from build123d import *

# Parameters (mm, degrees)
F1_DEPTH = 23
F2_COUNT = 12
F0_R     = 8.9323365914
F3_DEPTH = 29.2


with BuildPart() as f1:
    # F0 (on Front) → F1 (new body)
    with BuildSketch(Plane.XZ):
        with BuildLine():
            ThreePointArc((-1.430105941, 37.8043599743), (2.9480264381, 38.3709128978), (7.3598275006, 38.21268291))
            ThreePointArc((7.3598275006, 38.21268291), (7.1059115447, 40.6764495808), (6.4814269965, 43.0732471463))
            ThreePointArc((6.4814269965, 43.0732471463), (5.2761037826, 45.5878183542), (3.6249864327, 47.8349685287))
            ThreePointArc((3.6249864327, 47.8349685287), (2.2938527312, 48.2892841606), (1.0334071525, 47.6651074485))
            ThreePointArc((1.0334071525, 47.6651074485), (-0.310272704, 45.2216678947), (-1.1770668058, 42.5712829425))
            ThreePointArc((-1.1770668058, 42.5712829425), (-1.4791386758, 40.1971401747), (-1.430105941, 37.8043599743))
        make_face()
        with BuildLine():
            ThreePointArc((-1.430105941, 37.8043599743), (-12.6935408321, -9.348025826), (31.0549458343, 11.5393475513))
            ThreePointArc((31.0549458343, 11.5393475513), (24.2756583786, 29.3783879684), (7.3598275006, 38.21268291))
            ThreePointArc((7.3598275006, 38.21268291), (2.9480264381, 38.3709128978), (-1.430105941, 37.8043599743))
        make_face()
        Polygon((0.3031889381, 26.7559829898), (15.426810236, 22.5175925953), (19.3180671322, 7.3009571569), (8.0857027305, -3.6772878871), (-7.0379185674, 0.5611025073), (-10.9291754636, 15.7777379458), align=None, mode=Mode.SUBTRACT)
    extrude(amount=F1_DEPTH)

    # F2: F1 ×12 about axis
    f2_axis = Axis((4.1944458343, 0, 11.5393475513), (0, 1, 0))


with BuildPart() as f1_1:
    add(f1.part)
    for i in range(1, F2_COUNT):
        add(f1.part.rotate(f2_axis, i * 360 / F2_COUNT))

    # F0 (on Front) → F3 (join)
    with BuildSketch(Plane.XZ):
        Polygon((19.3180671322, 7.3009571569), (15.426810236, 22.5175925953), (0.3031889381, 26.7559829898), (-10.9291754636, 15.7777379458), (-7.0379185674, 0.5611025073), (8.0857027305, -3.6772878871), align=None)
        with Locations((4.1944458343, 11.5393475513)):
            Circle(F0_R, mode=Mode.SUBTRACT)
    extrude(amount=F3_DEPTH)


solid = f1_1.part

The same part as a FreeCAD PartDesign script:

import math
import FreeCAD as App
import Part
import Sketcher
from FreeCAD import Vector
Q = App.Units.Quantity

doc = App.newDocument("Part")
body = doc.addObject("PartDesign::Body", "Body")

sketch1 = body.newObject("Sketcher::SketchObject", "Sketch")
sketch1.AttachmentSupport = (doc.getObject("XZ_Plane"), [""])
sketch1.MapMode = "FlatFace"
sketch1.addGeometry([
    Part.ArcOfCircle(Part.Circle(Vector(-8.925133, 37.779321, 0), Vector(0, 0, 1), 16.290725), math.radians(1.524347), math.radians(18.963492)),
    Part.ArcOfCircle(Part.Circle(Vector(-7.55085, 37.893242, 0), Vector(0, 0, 1), 14.957849), math.radians(20.261591), math.radians(41.655441)),
    Part.ArcOfCircle(Part.Circle(Vector(2.413567, 46.462793, 0), Vector(0, 0, 1), 1.830411), math.radians(48.560477), math.radians(138.939523)),
    Part.ArcOfCircle(Part.Circle(Vector(13.411288, 39.267173, 0), Vector(0, 0, 1), 14.957849), math.radians(145.844559), math.radians(167.238409)),
    Part.ArcOfCircle(Part.Circle(Vector(14.788683, 39.333607, 0), Vector(0, 0, 1), 16.290725), math.radians(168.536508), math.radians(185.386415)),
    Part.ArcOfCircle(Part.Circle(Vector(4.194446, 11.539348, 0), Vector(0, 0, 1), 26.8605), math.radians(102.087112), math.radians(360)),
    Part.ArcOfCircle(Part.Circle(Vector(4.194446, 11.539348, 0), Vector(0, 0, 1), 26.8605), math.radians(0), math.radians(83.232239)),
    Part.LineSegment(Vector(-10.929175, 15.777738, 0), Vector(0.303189, 26.755983, 0)),
    Part.LineSegment(Vector(0.303189, 26.755983, 0), Vector(15.42681, 22.517593, 0)),
    Part.LineSegment(Vector(15.42681, 22.517593, 0), Vector(19.318067, 7.300957, 0)),
    Part.LineSegment(Vector(19.318067, 7.300957, 0), Vector(8.085703, -3.677288, 0)),
    Part.LineSegment(Vector(8.085703, -3.677288, 0), Vector(-7.037919, 0.561103, 0)),
    Part.LineSegment(Vector(-7.037919, 0.561103, 0), Vector(-10.929175, 15.777738, 0)),
], False)
sketch1.addConstraint([
    Sketcher.Constraint("Coincident", 0, 2, 1, 1),
    Sketcher.Constraint("Coincident", 1, 2, 2, 1),
    Sketcher.Constraint("Coincident", 2, 2, 3, 1),
    Sketcher.Constraint("Coincident", 3, 2, 4, 1),
    Sketcher.Constraint("Coincident", 4, 2, 5, 1),
    Sketcher.Constraint("Tangent", 5, 2, 6, 1),
    Sketcher.Constraint("Coincident", 6, 2, 0, 1),
    Sketcher.Constraint("Coincident", 7, 2, 8, 1),
    Sketcher.Constraint("Coincident", 8, 2, 9, 1),
    Sketcher.Constraint("Coincident", 9, 2, 10, 1),
    Sketcher.Constraint("Coincident", 10, 2, 11, 1),
    Sketcher.Constraint("Coincident", 11, 2, 12, 1),
    Sketcher.Constraint("Coincident", 12, 2, 7, 1),
    Sketcher.Constraint("Equal", 1, 3),
    Sketcher.Constraint("Equal", 0, 4),
    Sketcher.Constraint("Equal", 5, 6),
    Sketcher.Constraint("Parallel", 7, 10),
    Sketcher.Constraint("Parallel", 8, 11),
    Sketcher.Constraint("Parallel", 9, 12),
    Sketcher.Constraint("Horizontal", 6, 3, 5, 2),
    Sketcher.Constraint("Equal", 7, 8),
    Sketcher.Constraint("Equal", 8, 9),
    Sketcher.Constraint("Equal", 9, 10),
    Sketcher.Constraint("Radius", 5, Q("26.8605 mm")),
    Sketcher.Constraint("Radius", 1, Q("14.957849 mm")),
    Sketcher.Constraint("Radius", 2, Q("1.830411 mm")),
    Sketcher.Constraint("Radius", 0, Q("16.290725 mm")),
    Sketcher.Constraint("Distance", 7, Q("15.7063 mm")),
    Sketcher.Constraint("DistanceX", 0, 3, 2, 3, Q("11.3387 mm")),
    Sketcher.Constraint("DistanceX", 1, 2, 3, 3, Q("9.786302 mm")),
    Sketcher.Constraint("DistanceY", 5, 2, 0, 2, Q("31.5339 mm")),
    Sketcher.Constraint("DistanceX", 0, 2, 6, 2, Q("0.878401 mm")),
    Sketcher.Constraint("DistanceY", 6, 2, 3, 2, Q("4.3586 mm")),
    Sketcher.Constraint("DistanceY", 7, 2, 6, 2, Q("11.4567 mm")),
    Sketcher.Constraint("DistanceY", -1, 1, 0, 3, Q("37.779321 mm")),
    Sketcher.Constraint("DistanceX", 1, 3, -1, 1, Q("7.55085 mm")),
    Sketcher.Constraint("DistanceY", -1, 1, 1, 3, Q("37.893242 mm")),
    Sketcher.Constraint("DistanceX", -1, 1, 3, 3, Q("13.411288 mm")),
    Sketcher.Constraint("DistanceY", -1, 1, 4, 2, Q("37.80436 mm")),
    Sketcher.Constraint("DistanceX", -1, 1, 7, 2, Q("0.303189 mm")),
    Sketcher.Constraint("DistanceX", -1, 1, 8, 2, Q("15.42681 mm")),
    Sketcher.Constraint("DistanceX", 11, 2, -1, 1, Q("7.037919 mm")),
    Sketcher.Constraint("DistanceY", 3, 3, 2, 3, Q("7.19562 mm")),
    Sketcher.Constraint("DistanceX", 0, 3, 5, 3, Q("13.119578 mm")),
    Sketcher.Constraint("DistanceX", 9, 2, 5, 2, Q("11.736879 mm")),
])
pad1 = body.newObject("PartDesign::Pad", "Pad")
pad1.Profile = sketch1
pad1.Length = 23
body2 = doc.addObject("PartDesign::Body", "Body001")
doc.recompute()

body2.BaseFeature = body
doc.recompute()

body3 = doc.addObject("PartDesign::Body", "Body002")
body3.BaseFeature = body
body3.Placement = App.Placement(Vector(-5.207725, 0, 3.643202), App.Rotation(Vector(0, 1, 0), 30))
boolean = body2.newObject("PartDesign::Boolean", "Boolean")
boolean.Type = "Fuse"
boolean.addObjects([body3])
doc.recompute()

body4 = doc.addObject("PartDesign::Body", "Body003")
body4.BaseFeature = body
body4.Placement = App.Placement(Vector(-7.896145, 0, 9.40217), App.Rotation(Vector(0, 1, 0), 60))
boolean2 = body2.newObject("PartDesign::Boolean", "Boolean001")
boolean2.Type = "Fuse"
boolean2.addObjects([body4])
doc.recompute()

body5 = doc.addObject("PartDesign::Body", "Body004")
body5.BaseFeature = body
body5.Placement = App.Placement(Vector(-7.344902, 0, 15.733793), App.Rotation(Vector(0, 1, 0), 90))
boolean3 = body2.newObject("PartDesign::Boolean", "Boolean002")
boolean3.Type = "Fuse"
boolean3.addObjects([body5])
doc.recompute()

body6 = doc.addObject("PartDesign::Body", "Body005")
body6.BaseFeature = body
body6.Placement = App.Placement(Vector(-3.701699, 0, 20.941518), App.Rotation(Vector(0, 1, 0), 120))
boolean4 = body2.newObject("PartDesign::Boolean", "Boolean003")
boolean4.Type = "Fuse"
boolean4.addObjects([body6])
doc.recompute()

body7 = doc.addObject("PartDesign::Body", "Body006")
body7.BaseFeature = body
body7.Placement = App.Placement(Vector(2.057269, 0, 23.629939), App.Rotation(Vector(0, 1, 0), 150))
boolean5 = body2.newObject("PartDesign::Boolean", "Boolean004")
boolean5.Type = "Fuse"
boolean5.addObjects([body7])
doc.recompute()

body8 = doc.addObject("PartDesign::Body", "Body007")
body8.BaseFeature = body
body8.Placement = App.Placement(Vector(8.388892, 0, 23.078695), App.Rotation(Vector(0, 1, 0), 180))
boolean6 = body2.newObject("PartDesign::Boolean", "Boolean005")
boolean6.Type = "Fuse"
boolean6.addObjects([body8])
doc.recompute()

body9 = doc.addObject("PartDesign::Body", "Body008")
body9.BaseFeature = body
body9.Placement = App.Placement(Vector(13.596616, 0, 19.435493), App.Rotation(Vector(0, 1, 0), 210))
boolean7 = body2.newObject("PartDesign::Boolean", "Boolean006")
boolean7.Type = "Fuse"
boolean7.addObjects([body9])
doc.recompute()

body10 = doc.addObject("PartDesign::Body", "Body009")
body10.BaseFeature = body
body10.Placement = App.Placement(Vector(16.285037, 0, 13.676525), App.Rotation(Vector(0, 1, 0), 240))
boolean8 = body2.newObject("PartDesign::Boolean", "Boolean007")
boolean8.Type = "Fuse"
boolean8.addObjects([body10])
doc.recompute()

body11 = doc.addObject("PartDesign::Body", "Body010")
body11.BaseFeature = body
body11.Placement = App.Placement(Vector(15.733793, 0, 7.344902), App.Rotation(Vector(0, 1, 0), 270))
boolean9 = body2.newObject("PartDesign::Boolean", "Boolean008")
boolean9.Type = "Fuse"
boolean9.addObjects([body11])
doc.recompute()

body12 = doc.addObject("PartDesign::Body", "Body011")
body12.BaseFeature = body
body12.Placement = App.Placement(Vector(12.090591, 0, 2.137177), App.Rotation(Vector(0, 1, 0), 300))
boolean10 = body2.newObject("PartDesign::Boolean", "Boolean009")
boolean10.Type = "Fuse"
boolean10.addObjects([body12])
doc.recompute()

body.Placement = App.Placement(Vector(6.331623, 0, -0.551243), App.Rotation(Vector(0, 1, 0), 330))
boolean11 = body2.newObject("PartDesign::Boolean", "Boolean010")
boolean11.Type = "Fuse"
boolean11.addObjects([body])

sketch2 = body2.newObject("Sketcher::SketchObject", "Sketch001")
sketch2.AttachmentSupport = (doc.getObject("XZ_Plane001"), [""])
sketch2.MapMode = "FlatFace"
sketch2.addGeometry([
    Part.LineSegment(Vector(19.318067, 7.300957, 0), Vector(15.42681, 22.517593, 0)),
    Part.LineSegment(Vector(15.42681, 22.517593, 0), Vector(0.303189, 26.755983, 0)),
    Part.LineSegment(Vector(0.303189, 26.755983, 0), Vector(-10.929175, 15.777738, 0)),
    Part.LineSegment(Vector(-10.929175, 15.777738, 0), Vector(-7.037919, 0.561103, 0)),
    Part.LineSegment(Vector(-7.037919, 0.561103, 0), Vector(8.085703, -3.677288, 0)),
    Part.LineSegment(Vector(8.085703, -3.677288, 0), Vector(19.318067, 7.300957, 0)),
    Part.Circle(Vector(4.194446, 11.539348, 0), Vector(0, 0, 1), 8.932337),
], False)
sketch2.addConstraint([
    Sketcher.Constraint("Coincident", 0, 2, 1, 1),
    Sketcher.Constraint("Coincident", 1, 2, 2, 1),
    Sketcher.Constraint("Coincident", 2, 2, 3, 1),
    Sketcher.Constraint("Coincident", 3, 2, 4, 1),
    Sketcher.Constraint("Coincident", 4, 2, 5, 1),
    Sketcher.Constraint("Coincident", 5, 2, 0, 1),
    Sketcher.Constraint("Parallel", 0, 3),
    Sketcher.Constraint("Parallel", 1, 4),
    Sketcher.Constraint("Parallel", 2, 5),
    Sketcher.Constraint("Equal", 0, 1),
    Sketcher.Constraint("Equal", 1, 2),
    Sketcher.Constraint("Equal", 2, 3),
    Sketcher.Constraint("Diameter", 6, Q("17.864673 mm")),
    Sketcher.Constraint("Distance", 0, Q("15.7063 mm")),
    Sketcher.Constraint("DistanceX", -1, 1, 0, 2, Q("15.42681 mm")),
    Sketcher.Constraint("DistanceX", -1, 1, 1, 2, Q("0.303189 mm")),
    Sketcher.Constraint("DistanceX", 3, 2, -1, 1, Q("7.037919 mm")),
    Sketcher.Constraint("DistanceX", 2, 2, 6, 3, Q("15.123621 mm")),
    Sketcher.Constraint("DistanceY", 6, 3, 2, 2, Q("4.23839 mm")),
    Sketcher.Constraint("DistanceY", 3, 2, 1, 2, Q("26.19488 mm")),
    Sketcher.Constraint("DistanceY", -1, 1, 6, 3, Q("11.539348 mm")),
])
pad2 = body2.newObject("PartDesign::Pad", "Pad001")
pad2.Profile = sketch2
pad2.Length = 29.2

doc.recompute()
